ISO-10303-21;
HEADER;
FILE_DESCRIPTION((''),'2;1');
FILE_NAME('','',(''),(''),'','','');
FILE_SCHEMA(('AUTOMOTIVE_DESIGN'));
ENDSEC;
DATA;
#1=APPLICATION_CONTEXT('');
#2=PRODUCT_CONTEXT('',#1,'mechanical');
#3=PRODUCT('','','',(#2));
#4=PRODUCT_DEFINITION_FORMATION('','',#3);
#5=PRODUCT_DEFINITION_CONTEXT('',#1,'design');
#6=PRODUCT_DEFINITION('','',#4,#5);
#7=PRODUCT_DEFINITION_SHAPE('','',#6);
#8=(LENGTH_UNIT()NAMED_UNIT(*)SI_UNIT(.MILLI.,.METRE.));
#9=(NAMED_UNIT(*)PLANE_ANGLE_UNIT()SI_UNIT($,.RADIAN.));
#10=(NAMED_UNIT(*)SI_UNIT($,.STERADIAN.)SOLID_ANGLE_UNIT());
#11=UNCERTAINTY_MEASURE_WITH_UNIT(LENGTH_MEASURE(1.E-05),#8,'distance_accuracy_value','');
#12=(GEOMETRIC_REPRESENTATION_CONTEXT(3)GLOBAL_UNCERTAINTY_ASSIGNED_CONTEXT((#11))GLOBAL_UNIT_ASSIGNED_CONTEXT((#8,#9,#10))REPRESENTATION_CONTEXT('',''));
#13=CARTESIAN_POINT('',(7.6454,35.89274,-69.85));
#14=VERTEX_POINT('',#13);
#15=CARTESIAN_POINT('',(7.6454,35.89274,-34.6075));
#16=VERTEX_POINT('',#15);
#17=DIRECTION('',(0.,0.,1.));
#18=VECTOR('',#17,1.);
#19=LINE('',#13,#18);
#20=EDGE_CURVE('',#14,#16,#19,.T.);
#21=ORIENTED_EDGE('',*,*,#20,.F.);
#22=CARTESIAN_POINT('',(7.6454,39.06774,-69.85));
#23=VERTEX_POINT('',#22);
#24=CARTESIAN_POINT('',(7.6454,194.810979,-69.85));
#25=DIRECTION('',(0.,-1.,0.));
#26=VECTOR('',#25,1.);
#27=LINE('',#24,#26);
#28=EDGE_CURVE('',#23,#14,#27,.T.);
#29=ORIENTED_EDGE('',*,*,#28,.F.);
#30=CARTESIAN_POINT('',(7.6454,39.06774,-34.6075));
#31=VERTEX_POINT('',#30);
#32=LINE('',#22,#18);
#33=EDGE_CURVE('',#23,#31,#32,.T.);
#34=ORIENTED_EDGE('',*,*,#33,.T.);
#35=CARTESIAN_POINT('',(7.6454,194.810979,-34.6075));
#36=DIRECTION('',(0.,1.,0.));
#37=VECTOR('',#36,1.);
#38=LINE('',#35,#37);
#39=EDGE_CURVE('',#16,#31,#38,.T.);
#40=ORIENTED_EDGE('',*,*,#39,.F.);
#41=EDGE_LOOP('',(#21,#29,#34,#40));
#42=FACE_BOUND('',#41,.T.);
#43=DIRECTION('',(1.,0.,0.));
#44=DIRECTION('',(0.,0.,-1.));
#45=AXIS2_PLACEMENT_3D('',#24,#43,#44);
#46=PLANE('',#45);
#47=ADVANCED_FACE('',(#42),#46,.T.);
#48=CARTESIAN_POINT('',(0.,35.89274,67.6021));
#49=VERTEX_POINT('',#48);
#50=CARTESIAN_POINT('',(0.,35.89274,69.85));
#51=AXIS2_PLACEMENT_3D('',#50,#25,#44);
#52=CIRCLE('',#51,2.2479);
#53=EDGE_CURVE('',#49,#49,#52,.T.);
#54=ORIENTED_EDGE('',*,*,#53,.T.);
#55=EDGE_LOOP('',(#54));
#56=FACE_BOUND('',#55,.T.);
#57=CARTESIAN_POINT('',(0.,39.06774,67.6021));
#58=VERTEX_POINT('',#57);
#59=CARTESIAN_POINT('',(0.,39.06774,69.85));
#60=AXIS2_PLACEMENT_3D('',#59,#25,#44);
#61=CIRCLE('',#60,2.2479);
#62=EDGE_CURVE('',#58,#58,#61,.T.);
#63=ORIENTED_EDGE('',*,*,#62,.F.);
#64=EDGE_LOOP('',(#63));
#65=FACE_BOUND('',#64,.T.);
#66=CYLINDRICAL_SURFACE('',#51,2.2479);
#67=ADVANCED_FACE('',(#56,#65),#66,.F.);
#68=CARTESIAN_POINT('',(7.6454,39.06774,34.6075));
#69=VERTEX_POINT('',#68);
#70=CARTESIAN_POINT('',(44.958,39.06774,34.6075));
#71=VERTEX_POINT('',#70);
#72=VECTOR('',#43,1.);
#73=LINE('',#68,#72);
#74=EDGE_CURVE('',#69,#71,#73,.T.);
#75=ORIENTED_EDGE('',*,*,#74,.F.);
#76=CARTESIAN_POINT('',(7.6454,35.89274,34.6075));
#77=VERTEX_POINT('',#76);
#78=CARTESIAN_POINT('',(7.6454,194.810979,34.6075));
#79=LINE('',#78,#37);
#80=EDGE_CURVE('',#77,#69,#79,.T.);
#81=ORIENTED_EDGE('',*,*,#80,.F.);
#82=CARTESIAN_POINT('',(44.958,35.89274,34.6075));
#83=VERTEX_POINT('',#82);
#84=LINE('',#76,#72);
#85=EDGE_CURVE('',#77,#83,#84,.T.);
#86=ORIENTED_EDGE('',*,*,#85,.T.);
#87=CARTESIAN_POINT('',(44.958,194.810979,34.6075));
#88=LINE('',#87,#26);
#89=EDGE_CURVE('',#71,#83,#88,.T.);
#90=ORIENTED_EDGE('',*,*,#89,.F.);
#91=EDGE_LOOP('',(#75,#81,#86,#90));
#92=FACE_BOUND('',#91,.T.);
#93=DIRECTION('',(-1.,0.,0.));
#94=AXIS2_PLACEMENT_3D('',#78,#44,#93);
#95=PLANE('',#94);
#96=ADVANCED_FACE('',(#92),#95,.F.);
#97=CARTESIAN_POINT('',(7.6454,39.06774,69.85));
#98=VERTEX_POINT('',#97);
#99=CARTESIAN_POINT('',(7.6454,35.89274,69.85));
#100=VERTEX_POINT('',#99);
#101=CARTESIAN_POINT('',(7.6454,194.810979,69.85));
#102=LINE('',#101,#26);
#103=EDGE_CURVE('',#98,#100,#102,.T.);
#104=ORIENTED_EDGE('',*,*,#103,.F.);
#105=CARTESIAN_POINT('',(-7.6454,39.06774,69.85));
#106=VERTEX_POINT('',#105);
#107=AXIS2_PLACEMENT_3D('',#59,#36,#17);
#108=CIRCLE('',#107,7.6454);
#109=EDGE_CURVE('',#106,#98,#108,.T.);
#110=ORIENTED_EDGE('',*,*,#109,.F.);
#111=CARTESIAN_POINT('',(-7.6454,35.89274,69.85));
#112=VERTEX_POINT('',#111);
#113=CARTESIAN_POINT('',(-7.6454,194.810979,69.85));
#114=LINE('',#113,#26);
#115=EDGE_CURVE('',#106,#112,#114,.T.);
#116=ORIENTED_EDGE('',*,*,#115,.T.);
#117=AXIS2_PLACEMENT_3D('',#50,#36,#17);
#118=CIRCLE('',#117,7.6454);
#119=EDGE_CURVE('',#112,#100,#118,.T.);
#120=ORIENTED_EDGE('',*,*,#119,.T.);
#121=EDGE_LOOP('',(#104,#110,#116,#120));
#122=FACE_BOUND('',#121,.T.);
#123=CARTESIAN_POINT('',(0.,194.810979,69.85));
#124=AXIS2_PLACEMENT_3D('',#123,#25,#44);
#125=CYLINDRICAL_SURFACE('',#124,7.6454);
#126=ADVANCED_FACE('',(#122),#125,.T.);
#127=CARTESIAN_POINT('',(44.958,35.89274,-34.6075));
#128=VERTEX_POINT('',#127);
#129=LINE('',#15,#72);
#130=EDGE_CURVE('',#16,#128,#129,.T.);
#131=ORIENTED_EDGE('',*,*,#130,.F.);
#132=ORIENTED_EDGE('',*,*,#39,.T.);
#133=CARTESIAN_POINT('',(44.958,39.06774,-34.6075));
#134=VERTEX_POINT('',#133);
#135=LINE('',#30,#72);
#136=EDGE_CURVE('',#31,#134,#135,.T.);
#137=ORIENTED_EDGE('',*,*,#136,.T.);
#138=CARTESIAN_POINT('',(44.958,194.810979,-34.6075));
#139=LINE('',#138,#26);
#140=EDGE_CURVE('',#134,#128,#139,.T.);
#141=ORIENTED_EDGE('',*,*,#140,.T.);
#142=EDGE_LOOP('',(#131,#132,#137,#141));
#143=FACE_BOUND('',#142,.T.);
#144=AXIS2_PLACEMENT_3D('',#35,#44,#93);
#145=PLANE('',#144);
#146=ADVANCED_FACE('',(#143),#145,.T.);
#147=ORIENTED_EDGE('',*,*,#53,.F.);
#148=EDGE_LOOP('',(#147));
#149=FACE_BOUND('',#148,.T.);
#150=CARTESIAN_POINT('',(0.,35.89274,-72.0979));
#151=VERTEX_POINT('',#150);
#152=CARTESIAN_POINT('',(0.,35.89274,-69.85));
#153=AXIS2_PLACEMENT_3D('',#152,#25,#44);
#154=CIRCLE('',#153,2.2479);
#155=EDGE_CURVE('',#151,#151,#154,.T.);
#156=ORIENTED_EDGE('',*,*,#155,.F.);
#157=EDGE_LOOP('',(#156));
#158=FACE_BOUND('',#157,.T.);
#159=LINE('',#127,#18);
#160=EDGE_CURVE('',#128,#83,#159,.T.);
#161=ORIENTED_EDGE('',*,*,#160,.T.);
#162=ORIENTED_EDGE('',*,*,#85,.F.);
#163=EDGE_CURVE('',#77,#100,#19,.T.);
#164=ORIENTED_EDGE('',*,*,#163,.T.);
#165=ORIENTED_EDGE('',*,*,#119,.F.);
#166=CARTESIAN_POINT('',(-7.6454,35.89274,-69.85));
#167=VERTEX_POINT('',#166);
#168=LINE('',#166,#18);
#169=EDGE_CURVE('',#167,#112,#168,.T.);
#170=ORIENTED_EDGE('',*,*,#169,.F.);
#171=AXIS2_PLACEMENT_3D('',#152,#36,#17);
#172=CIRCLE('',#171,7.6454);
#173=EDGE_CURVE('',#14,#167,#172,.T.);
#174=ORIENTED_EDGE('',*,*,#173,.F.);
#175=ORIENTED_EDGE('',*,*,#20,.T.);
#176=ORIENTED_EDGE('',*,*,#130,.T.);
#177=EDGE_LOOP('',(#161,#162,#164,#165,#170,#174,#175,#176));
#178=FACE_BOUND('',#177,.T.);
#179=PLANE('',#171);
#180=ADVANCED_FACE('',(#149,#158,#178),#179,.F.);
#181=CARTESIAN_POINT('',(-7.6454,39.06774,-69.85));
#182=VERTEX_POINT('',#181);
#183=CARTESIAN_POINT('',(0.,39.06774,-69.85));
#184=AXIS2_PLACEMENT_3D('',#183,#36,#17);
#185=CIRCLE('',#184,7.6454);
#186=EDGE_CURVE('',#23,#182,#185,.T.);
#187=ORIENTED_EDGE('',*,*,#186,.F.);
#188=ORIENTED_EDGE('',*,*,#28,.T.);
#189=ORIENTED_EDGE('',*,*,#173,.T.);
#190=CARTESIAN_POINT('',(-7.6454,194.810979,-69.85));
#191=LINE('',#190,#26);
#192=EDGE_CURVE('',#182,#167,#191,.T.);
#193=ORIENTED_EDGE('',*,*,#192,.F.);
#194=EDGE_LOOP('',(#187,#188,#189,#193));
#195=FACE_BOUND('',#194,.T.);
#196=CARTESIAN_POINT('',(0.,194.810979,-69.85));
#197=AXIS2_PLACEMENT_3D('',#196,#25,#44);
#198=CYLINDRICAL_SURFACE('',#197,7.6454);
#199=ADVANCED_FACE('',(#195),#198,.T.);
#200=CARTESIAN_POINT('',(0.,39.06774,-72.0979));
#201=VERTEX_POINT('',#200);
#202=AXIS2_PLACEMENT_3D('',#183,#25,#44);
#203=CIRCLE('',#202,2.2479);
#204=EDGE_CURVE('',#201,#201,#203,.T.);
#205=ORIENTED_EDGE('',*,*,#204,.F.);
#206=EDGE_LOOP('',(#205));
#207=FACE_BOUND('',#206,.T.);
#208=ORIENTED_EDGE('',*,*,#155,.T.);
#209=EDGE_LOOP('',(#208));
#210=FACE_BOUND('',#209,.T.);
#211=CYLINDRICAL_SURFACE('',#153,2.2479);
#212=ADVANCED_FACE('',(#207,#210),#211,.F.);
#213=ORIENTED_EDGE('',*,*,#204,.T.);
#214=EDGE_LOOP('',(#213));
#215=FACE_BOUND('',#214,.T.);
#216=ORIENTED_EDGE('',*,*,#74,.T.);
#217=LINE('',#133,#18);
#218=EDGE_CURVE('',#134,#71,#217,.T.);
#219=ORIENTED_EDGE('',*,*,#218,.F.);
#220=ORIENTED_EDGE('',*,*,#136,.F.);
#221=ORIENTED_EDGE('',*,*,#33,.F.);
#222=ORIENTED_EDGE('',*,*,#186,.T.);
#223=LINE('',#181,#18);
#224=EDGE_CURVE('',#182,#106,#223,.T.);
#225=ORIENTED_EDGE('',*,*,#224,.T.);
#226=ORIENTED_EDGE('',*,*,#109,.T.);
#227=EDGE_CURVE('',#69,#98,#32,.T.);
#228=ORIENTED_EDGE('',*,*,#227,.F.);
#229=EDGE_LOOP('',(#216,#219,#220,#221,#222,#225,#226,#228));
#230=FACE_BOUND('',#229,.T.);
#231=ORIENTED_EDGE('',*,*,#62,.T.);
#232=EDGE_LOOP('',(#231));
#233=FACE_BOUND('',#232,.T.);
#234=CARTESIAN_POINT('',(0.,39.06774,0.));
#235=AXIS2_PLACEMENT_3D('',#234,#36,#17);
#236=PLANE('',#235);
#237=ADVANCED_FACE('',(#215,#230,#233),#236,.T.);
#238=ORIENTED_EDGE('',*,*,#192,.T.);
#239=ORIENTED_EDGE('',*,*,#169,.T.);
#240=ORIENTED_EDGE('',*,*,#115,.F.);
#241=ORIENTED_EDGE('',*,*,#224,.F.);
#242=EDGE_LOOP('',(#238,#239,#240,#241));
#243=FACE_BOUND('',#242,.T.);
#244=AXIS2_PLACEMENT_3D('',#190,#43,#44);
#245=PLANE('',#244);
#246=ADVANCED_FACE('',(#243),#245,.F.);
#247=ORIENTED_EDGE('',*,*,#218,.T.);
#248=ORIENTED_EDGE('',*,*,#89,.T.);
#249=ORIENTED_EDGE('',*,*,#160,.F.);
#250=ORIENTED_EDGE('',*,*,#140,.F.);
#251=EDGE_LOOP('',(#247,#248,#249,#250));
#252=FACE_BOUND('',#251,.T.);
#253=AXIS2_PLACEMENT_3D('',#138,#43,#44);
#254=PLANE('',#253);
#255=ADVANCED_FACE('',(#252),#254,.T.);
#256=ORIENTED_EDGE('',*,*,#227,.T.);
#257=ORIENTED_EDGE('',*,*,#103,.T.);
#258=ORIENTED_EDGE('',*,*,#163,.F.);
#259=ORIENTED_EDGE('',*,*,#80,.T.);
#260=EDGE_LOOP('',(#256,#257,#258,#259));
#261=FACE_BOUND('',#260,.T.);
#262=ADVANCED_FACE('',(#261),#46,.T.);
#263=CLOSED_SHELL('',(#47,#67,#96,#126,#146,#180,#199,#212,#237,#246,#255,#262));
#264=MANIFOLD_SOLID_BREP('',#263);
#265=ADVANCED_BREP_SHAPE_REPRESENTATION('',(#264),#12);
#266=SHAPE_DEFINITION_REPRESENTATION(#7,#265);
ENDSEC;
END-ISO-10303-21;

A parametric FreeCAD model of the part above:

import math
import FreeCAD as App
import Part
import Sketcher

V = App.Vector
Q = App.Units.Quantity

doc = App.newDocument("Part")
body = doc.addObject("PartDesign::Body", "Body")

# Sketch on XZ plane
sketch1 = body.newObject("Sketcher::SketchObject", "Sketch")
sketch1.AttachmentSupport = (doc.getObject("XZ_Plane"), [""])
sketch1.MapMode = "FlatFace"
sketch1.AttachmentOffset = App.Placement(V(0, 0, -1.4131 * 25.4), App.Rotation())
sketch1.addGeometry([
    Part.LineSegment(V(7.6454, -34.6075, 0), V(7.6454, -69.85, 0)),  # 0
    Part.ArcOfCircle(Part.Circle(V(0, -69.85, 0), V(0, 0, 1), 7.6454), math.radians(180), math.radians(360)),  # 1
    Part.LineSegment(V(-7.6454, -69.85, 0), V(-7.6454, 69.85, 0)),  # 2
    Part.ArcOfCircle(Part.Circle(V(0, 69.85, 0), V(0, 0, 1), 7.6454), math.radians(0), math.radians(180)),  # 3
    Part.LineSegment(V(7.6454, 69.85, 0), V(7.6454, 34.6075, 0)),  # 4
    Part.LineSegment(V(7.6454, 34.6075, 0), V(44.958, 34.6075, 0)),  # 5
    Part.LineSegment(V(44.958, 34.6075, 0), V(44.958, -34.6075, 0)),  # 6
    Part.LineSegment(V(44.958, -34.6075, 0), V(7.6454, -34.6075, 0)),  # 7
], False)
sketch1.addConstraint([
    Sketcher.Constraint("Tangent", 0, 2, 1, 2),
    Sketcher.Constraint("Tangent", 1, 1, 2, 1),
    Sketcher.Constraint("Tangent", 2, 2, 3, 2),
    Sketcher.Constraint("Tangent", 3, 1, 4, 1),
    Sketcher.Constraint("Coincident", 4, 2, 5, 1),
    Sketcher.Constraint("Coincident", 5, 2, 6, 1),
    Sketcher.Constraint("Coincident", 6, 2, 7, 1),
    Sketcher.Constraint("Coincident", 7, 2, 0, 1),
    Sketcher.Constraint("Vertical", 0),
    Sketcher.Constraint("Vertical", 2),
    Sketcher.Constraint("Vertical", 4),
    Sketcher.Constraint("Horizontal", 5),
    Sketcher.Constraint("Vertical", 6),
    Sketcher.Constraint("Horizontal", 7),
    Sketcher.Constraint("Equal", 1, 3),
    Sketcher.Constraint("Symmetric", 1, 3, 3, 3, -1, 1),
    Sketcher.Constraint("Equal", 0, 4),
    Sketcher.Constraint("DistanceY", 2, 1, 2, 2, Q("5.5 in")),
    Sketcher.Constraint("Radius", 1, Q("0.301 in")),
    Sketcher.Constraint("DistanceX", 5, 1, 5, 2, Q("1.469 in")),
    Sketcher.Constraint("DistanceY", 6, 2, 6, 1, Q("2.725 in")),
])
pad1 = body.newObject("PartDesign::Pad", "Pad")
pad1.Profile = sketch1
pad1.Length = Q("0.125 in")
pad1.Reversed = True

# Sketch on XZ plane
sketch2 = body.newObject("Sketcher::SketchObject", "Sketch001")
sketch2.AttachmentSupport = (doc.getObject("XZ_Plane"), [""])
sketch2.MapMode = "FlatFace"
sketch2.AttachmentOffset = App.Placement(V(0, 0, -1.4131 * 25.4), App.Rotation())
sketch2.addGeometry([
    Part.Circle(V(0, 69.85, 0), V(0, 0, 1), 2.2479),
    Part.Circle(V(0, -69.85, 0), V(0, 0, 1), 2.2479),
], False)
sketch2.addConstraint([
    Sketcher.Constraint("Equal", 0, 1),
    Sketcher.Constraint("Symmetric", 0, 3, 1, 3, -1, 1),
    Sketcher.Constraint("PointOnObject", 0, 3, -2),
    Sketcher.Constraint("Diameter", 0, Q("0.177 in")),
    Sketcher.Constraint("DistanceY", 1, 3, 0, 3, Q("5.5 in")),
])
doc.recompute()
hole = body.newObject("PartDesign::Hole", "Hole")
hole.Profile = sketch2
hole.ThreadType = "None"
hole.Diameter = Q("0.177 in")
hole.DepthType = "ThroughAll"

doc.recompute()
